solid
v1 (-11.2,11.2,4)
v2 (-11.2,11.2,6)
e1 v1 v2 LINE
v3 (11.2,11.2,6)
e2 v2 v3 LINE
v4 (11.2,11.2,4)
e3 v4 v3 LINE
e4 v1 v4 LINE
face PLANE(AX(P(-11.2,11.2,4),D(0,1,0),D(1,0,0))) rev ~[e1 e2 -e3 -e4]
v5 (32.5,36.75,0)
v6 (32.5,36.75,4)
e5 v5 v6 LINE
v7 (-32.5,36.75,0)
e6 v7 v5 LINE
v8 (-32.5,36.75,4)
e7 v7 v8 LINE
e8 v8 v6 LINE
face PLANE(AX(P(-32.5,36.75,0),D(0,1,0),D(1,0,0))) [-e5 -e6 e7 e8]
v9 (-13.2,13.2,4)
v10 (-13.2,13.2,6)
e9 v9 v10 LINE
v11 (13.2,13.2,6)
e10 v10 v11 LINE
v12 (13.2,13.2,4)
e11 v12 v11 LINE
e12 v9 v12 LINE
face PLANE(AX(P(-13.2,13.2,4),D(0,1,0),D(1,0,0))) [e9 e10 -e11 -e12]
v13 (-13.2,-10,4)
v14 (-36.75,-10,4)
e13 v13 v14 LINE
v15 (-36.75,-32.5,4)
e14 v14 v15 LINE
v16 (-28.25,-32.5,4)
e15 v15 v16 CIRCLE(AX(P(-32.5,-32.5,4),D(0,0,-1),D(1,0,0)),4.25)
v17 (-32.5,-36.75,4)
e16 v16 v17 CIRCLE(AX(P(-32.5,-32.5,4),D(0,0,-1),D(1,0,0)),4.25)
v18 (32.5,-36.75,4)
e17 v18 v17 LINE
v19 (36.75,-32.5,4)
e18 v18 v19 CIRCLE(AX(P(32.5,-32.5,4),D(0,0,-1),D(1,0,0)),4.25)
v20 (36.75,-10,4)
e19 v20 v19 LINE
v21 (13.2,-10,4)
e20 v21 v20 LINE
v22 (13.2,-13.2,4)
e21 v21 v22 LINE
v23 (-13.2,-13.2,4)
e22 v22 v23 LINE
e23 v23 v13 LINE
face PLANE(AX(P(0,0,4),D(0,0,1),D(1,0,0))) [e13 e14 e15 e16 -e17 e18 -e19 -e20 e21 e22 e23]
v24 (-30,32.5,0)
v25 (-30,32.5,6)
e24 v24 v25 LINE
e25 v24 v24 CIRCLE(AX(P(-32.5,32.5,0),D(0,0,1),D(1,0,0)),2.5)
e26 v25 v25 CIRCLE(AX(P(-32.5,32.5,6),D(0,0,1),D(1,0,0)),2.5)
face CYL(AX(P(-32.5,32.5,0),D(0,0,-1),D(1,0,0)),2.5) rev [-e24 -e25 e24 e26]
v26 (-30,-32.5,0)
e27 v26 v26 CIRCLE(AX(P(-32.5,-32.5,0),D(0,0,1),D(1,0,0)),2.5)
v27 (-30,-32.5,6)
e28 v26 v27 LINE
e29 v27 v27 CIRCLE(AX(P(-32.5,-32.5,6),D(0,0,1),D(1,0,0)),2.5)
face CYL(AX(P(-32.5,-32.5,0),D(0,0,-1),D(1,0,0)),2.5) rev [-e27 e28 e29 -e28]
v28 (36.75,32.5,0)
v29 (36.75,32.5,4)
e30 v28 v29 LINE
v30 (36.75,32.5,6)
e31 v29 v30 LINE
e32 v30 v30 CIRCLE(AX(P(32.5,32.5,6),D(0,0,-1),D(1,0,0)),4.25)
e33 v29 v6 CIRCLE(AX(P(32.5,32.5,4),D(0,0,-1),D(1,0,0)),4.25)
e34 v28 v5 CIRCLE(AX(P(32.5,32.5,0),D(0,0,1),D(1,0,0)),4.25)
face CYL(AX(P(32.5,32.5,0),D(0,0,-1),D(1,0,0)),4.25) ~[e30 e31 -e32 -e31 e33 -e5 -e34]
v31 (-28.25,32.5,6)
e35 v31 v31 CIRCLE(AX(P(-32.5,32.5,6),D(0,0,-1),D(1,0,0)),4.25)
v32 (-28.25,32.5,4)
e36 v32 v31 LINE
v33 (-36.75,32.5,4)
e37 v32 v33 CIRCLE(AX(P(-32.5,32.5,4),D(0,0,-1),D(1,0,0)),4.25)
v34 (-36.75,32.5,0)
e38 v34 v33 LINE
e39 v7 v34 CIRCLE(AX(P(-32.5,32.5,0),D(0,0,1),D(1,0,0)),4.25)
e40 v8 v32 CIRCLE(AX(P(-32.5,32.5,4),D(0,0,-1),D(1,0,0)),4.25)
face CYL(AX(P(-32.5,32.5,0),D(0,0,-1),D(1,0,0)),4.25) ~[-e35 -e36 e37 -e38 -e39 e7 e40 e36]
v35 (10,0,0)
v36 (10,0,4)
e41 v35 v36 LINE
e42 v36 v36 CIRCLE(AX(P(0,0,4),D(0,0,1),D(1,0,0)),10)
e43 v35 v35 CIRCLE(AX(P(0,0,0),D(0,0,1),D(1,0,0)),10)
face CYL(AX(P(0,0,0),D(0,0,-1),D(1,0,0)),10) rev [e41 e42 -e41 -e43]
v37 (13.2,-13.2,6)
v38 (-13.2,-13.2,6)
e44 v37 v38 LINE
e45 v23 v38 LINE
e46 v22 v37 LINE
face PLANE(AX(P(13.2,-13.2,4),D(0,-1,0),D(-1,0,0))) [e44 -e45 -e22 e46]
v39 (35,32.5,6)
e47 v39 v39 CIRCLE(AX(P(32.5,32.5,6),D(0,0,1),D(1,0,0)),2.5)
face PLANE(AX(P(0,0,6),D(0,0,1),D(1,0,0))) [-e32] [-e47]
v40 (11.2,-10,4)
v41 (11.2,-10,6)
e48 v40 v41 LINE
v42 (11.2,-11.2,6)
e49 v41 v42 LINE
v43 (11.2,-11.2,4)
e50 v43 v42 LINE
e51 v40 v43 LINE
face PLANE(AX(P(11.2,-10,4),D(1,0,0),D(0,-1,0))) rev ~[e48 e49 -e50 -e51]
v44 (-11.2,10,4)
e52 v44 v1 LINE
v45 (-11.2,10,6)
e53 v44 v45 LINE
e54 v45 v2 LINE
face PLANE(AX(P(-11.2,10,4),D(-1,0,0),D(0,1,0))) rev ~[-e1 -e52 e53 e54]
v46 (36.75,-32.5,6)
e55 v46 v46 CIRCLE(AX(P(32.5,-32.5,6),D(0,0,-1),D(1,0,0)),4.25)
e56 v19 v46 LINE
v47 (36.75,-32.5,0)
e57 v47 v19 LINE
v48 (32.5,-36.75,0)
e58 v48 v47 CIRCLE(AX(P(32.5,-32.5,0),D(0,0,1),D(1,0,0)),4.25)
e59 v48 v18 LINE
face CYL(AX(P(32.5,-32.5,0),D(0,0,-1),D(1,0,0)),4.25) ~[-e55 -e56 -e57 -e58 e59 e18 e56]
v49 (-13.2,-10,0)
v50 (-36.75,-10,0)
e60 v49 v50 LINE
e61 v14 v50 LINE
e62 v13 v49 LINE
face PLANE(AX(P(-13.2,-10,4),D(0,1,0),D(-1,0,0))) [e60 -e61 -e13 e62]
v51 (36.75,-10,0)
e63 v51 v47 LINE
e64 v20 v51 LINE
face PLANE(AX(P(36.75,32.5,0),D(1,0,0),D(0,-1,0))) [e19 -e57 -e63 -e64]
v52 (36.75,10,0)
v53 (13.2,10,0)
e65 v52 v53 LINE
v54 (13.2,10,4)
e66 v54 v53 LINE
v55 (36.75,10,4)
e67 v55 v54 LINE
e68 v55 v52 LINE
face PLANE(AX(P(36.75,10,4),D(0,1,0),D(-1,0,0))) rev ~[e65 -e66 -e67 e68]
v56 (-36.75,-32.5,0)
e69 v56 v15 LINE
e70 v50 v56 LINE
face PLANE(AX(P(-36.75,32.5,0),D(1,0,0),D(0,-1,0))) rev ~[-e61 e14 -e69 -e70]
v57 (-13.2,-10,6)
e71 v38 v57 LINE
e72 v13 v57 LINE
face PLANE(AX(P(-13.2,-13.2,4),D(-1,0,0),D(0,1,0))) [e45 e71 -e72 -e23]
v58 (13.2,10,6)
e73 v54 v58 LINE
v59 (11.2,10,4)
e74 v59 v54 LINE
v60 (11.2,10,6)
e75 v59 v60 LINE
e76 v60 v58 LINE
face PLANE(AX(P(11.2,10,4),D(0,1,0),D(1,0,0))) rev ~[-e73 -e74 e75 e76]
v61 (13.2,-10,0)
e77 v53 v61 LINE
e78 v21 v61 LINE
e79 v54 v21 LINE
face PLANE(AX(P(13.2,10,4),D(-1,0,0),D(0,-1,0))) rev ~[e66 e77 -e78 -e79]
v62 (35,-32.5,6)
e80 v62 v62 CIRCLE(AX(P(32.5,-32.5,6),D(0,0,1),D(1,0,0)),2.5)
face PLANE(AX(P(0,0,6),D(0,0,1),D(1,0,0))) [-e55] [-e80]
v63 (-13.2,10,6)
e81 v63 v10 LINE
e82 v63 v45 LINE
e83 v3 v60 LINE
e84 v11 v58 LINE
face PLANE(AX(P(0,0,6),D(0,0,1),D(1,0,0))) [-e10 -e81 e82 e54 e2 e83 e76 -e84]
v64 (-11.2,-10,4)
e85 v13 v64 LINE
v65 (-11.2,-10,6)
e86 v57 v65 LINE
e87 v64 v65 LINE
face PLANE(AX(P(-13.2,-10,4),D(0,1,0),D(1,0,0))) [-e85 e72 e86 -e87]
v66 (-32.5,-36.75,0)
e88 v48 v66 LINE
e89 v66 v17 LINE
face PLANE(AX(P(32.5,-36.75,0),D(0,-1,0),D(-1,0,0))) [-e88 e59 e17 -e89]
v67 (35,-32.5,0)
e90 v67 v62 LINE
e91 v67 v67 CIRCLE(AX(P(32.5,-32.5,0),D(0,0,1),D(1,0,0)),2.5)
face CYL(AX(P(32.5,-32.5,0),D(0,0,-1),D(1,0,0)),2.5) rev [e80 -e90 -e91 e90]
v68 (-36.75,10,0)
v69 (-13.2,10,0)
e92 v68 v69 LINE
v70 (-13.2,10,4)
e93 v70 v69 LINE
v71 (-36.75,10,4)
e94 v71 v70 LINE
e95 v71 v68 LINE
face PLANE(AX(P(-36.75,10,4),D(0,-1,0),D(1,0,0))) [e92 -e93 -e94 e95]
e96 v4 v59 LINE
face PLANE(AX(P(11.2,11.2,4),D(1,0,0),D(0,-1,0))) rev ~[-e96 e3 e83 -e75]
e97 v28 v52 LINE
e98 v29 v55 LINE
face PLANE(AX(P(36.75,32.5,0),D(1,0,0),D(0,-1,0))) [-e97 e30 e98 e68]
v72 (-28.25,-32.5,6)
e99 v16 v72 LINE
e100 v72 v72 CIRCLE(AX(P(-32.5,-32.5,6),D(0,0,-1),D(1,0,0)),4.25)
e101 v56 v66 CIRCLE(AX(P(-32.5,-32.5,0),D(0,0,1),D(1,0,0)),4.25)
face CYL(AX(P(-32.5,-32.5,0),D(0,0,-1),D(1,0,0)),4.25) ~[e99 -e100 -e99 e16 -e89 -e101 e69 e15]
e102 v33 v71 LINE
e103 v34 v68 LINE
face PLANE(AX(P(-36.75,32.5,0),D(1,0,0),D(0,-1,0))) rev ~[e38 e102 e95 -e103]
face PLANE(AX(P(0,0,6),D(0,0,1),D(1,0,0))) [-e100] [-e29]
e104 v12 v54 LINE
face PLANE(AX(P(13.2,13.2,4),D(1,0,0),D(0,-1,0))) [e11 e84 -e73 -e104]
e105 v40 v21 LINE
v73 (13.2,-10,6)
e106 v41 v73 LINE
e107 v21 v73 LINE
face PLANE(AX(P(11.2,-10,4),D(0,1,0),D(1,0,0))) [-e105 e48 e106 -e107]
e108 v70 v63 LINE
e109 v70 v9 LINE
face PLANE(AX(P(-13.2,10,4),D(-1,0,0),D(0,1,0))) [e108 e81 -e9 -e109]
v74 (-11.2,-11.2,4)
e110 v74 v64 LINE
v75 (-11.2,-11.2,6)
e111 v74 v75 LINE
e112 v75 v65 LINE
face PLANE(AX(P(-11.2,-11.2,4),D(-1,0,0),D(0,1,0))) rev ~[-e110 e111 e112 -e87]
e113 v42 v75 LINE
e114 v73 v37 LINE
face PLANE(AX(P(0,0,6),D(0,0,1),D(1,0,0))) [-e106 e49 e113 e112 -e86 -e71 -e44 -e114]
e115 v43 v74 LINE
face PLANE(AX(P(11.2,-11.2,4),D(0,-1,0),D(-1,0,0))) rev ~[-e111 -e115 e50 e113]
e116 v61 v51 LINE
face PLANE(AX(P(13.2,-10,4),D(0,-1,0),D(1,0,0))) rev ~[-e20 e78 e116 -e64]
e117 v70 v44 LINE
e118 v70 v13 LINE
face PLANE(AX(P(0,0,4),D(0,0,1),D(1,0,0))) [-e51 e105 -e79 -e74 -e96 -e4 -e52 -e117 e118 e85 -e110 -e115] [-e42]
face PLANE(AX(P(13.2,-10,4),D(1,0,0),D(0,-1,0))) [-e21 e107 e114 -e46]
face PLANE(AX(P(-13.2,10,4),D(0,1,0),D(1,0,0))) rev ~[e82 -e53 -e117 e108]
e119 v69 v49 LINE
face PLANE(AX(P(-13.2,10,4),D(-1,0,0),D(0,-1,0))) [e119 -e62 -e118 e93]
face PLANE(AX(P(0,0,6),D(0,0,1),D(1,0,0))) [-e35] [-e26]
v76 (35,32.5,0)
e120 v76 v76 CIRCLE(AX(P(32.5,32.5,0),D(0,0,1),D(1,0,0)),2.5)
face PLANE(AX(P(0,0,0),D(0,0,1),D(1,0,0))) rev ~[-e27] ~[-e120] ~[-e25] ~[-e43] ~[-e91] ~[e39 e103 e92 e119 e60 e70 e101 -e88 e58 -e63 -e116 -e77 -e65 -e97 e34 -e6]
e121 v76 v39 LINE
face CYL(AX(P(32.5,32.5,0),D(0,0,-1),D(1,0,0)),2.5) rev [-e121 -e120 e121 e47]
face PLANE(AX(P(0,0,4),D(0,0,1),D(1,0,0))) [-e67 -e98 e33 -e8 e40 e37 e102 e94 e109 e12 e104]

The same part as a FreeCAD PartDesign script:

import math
import FreeCAD as App
import Part
import Sketcher
from FreeCAD import Vector


def add_polygon(sketch, points):
    """Adds a closed chain of lines whose ends are joined by coincident constraints."""
    first, n = sketch.GeometryCount, len(points)
    for a, b in zip(points, points[1:] + points[:1]):
        sketch.addGeometry(Part.LineSegment(App.Vector(*a, 0), App.Vector(*b, 0)), False)
    for i in range(n):
        sketch.addConstraint(Sketcher.Constraint("Coincident", first + i, 2, first + (i + 1) % n, 1))

doc = App.newDocument("Part")
body = doc.addObject("PartDesign::Body", "Body")

# Sketch on XY plane
sketch1 = body.newObject("Sketcher::SketchObject", "Sketch")
sketch1.AttachmentSupport = (doc.getObject("XY_Plane"), [""])
sketch1.MapMode = "FlatFace"
sketch1.addGeometry([
    Part.ArcOfCircle(Part.Circle(Vector(-32.5, 32.5, 0), Vector(0, 0, 1), 4.25), math.radians(90), math.radians(180)),  # 0
    Part.LineSegment(Vector(-36.75, 32.5, 0), Vector(-36.75, -32.5, 0)),  # 1
    Part.ArcOfCircle(Part.Circle(Vector(-32.5, -32.5, 0), Vector(0, 0, 1), 4.25), math.radians(180), math.radians(270)),  # 2
    Part.LineSegment(Vector(-32.5, -36.75, 0), Vector(32.5, -36.75, 0)),  # 3
    Part.ArcOfCircle(Part.Circle(Vector(32.5, -32.5, 0), Vector(0, 0, 1), 4.25), math.radians(-90), math.radians(0)),  # 4
    Part.LineSegment(Vector(36.75, -32.5, 0), Vector(36.75, 32.5, 0)),  # 5
    Part.ArcOfCircle(Part.Circle(Vector(32.5, 32.5, 0), Vector(0, 0, 1), 4.25), math.radians(0), math.radians(90)),  # 6
    Part.LineSegment(Vector(32.5, 36.75, 0), Vector(-32.5, 36.75, 0)),  # 7
    Part.Circle(Vector(-32.5, 32.5, 0), Vector(0, 0, 1), 2.5),  # 8
    Part.Circle(Vector(0, 0, 0), Vector(0, 0, 1), 10),  # 9
    Part.Circle(Vector(32.5, 32.5, 0), Vector(0, 0, 1), 2.5),  # 10
    Part.Circle(Vector(32.5, -32.5, 0), Vector(0, 0, 1), 2.5),  # 11
    Part.Circle(Vector(-32.5, -32.5, 0), Vector(0, 0, 1), 2.5),  # 12
], False)
sketch1.addConstraint([
    Sketcher.Constraint("Tangent", 0, 2, 1, 1),
    Sketcher.Constraint("Tangent", 1, 2, 2, 1),
    Sketcher.Constraint("Tangent", 2, 2, 3, 1),
    Sketcher.Constraint("Tangent", 3, 2, 4, 1),
    Sketcher.Constraint("Tangent", 4, 2, 5, 1),
    Sketcher.Constraint("Tangent", 5, 2, 6, 1),
    Sketcher.Constraint("Tangent", 6, 2, 7, 1),
    Sketcher.Constraint("Tangent", 7, 2, 0, 1),
    Sketcher.Constraint("Vertical", 1),
    Sketcher.Constraint("Horizontal", 3),
    Sketcher.Constraint("Vertical", 5),
    Sketcher.Constraint("Horizontal", 7),
    Sketcher.Constraint("Coincident", 9, 3, -1, 1),
    Sketcher.Constraint("Coincident", 8, 3, 0, 3),
    Sketcher.Constraint("Coincident", 10, 3, 6, 3),
    Sketcher.Constraint("Coincident", 11, 3, 4, 3),
    Sketcher.Constraint("Coincident", 12, 3, 2, 3),
    Sketcher.Constraint("Equal", 0, 2),
    Sketcher.Constraint("Equal", 2, 4),
    Sketcher.Constraint("Equal", 4, 6),
    Sketcher.Constraint("Equal", 8, 10),
    Sketcher.Constraint("Equal", 10, 11),
    Sketcher.Constraint("Equal", 11, 12),
    Sketcher.Constraint("Symmetric", 0, 3, 4, 3, -1, 1),
    Sketcher.Constraint("Equal", 7, 1),
    Sketcher.Constraint("Diameter", 8, 5.0),
    Sketcher.Constraint("Diameter", 9, 20.0),
    Sketcher.Constraint("DistanceX", 3, 1, 3, 2, 65.0),
    Sketcher.Constraint("Radius", 0, 4.25),
])
pad1 = body.newObject("PartDesign::Pad", "Pad")
pad1.Profile = sketch1
pad1.Length = 4

# Sketch on XY plane
sketch2 = body.newObject("Sketcher::SketchObject", "Sketch001")
sketch2.AttachmentSupport = (doc.getObject("XY_Plane"), [""])
sketch2.MapMode = "FlatFace"
sketch2.AttachmentOffset = App.Placement(Vector(0, 0, 4), App.Rotation())
add_polygon(sketch2, [(-11.2, 10), (-11.2, 11.2), (11.2, 11.2), (11.2, 10), (13.2, 10), (13.2, 13.2), (-13.2, 13.2), (-13.2, 10)])  # lines 0-7
add_polygon(sketch2, [(11.2, -10), (11.2, -11.2), (-11.2, -11.2), (-11.2, -10), (-13.2, -10), (-13.2, -13.2), (13.2, -13.2), (13.2, -10)])  # lines 8-15
sketch2.addConstraint([
    Sketcher.Constraint("Vertical", 0),
    Sketcher.Constraint("Horizontal", 1),
    Sketcher.Constraint("Vertical", 2),
    Sketcher.Constraint("Horizontal", 3),
    Sketcher.Constraint("Vertical", 4),
    Sketcher.Constraint("Horizontal", 5),
    Sketcher.Constraint("Vertical", 6),
    Sketcher.Constraint("Horizontal", 7),
    Sketcher.Constraint("Vertical", 8),
    Sketcher.Constraint("Horizontal", 9),
    Sketcher.Constraint("Vertical", 10),
    Sketcher.Constraint("Horizontal", 11),
    Sketcher.Constraint("Vertical", 12),
    Sketcher.Constraint("Horizontal", 13),
    Sketcher.Constraint("Vertical", 14),
    Sketcher.Constraint("Horizontal", 15),
    Sketcher.Constraint("Symmetric", 0, 2, 8, 2, -1, 1),
    Sketcher.Constraint("Symmetric", 2, 2, 10, 2, -1, 1),
    Sketcher.Constraint("Symmetric", 4, 2, 12, 2, -1, 1),
    Sketcher.Constraint("Symmetric", 6, 2, 14, 2, -1, 1),
    Sketcher.Constraint("Symmetric", 3, 2, 6, 2, -2),
    Sketcher.Constraint("Vertical", 2, 2, 8, 2),
    Sketcher.Constraint("DistanceX", 3, 1, 3, 2, 2.0),
    Sketcher.Constraint("DistanceX", 1, 1, 1, 2, 22.4),
    Sketcher.Constraint("DistanceY", 1, 2, 4, 2, 2.0),
    Sketcher.Constraint("DistanceY", 10, 2, 7, 2, 20.0),
    Sketcher.Constraint("DistanceY", 8, 2, 1, 2, 22.4),
])
pad2 = body.newObject("PartDesign::Pad", "Pad001")
pad2.Profile = sketch2
pad2.Length = 2

# Sketch on XY plane
sketch3 = body.newObject("Sketcher::SketchObject", "Sketch002")
sketch3.AttachmentSupport = (doc.getObject("XY_Plane"), [""])
sketch3.MapMode = "FlatFace"
sketch3.addGeometry([
    Part.Circle(Vector(-32.5, 32.5, 0), Vector(0, 0, 1), 4.25),  # 0
    Part.Circle(Vector(-32.5, 32.5, 0), Vector(0, 0, 1), 2.5),  # 1
    Part.Circle(Vector(32.5, 32.5, 0), Vector(0, 0, 1), 4.25),  # 2
    Part.Circle(Vector(32.5, 32.5, 0), Vector(0, 0, 1), 2.5),  # 3
    Part.Circle(Vector(-32.5, -32.5, 0), Vector(0, 0, 1), 4.25),  # 4
    Part.Circle(Vector(-32.5, -32.5, 0), Vector(0, 0, 1), 2.5),  # 5
    Part.Circle(Vector(32.5, -32.5, 0), Vector(0, 0, 1), 4.25),  # 6
    Part.Circle(Vector(32.5, -32.5, 0), Vector(0, 0, 1), 2.5),  # 7
], False)
sketch3.addConstraint([
    Sketcher.Constraint("Coincident", 1, 3, 0, 3),
    Sketcher.Constraint("Coincident", 3, 3, 2, 3),
    Sketcher.Constraint("Coincident", 5, 3, 4, 3),
    Sketcher.Constraint("Coincident", 7, 3, 6, 3),
    Sketcher.Constraint("Equal", 0, 2),
    Sketcher.Constraint("Equal", 1, 3),
    Sketcher.Constraint("Equal", 2, 4),
    Sketcher.Constraint("Equal", 3, 5),
    Sketcher.Constraint("Equal", 4, 6),
    Sketcher.Constraint("Equal", 5, 7),
    Sketcher.Constraint("Symmetric", 2, 3, 4, 3, -1, 1),
    Sketcher.Constraint("Symmetric", 0, 3, 6, 3, -1, 1),
    Sketcher.Constraint("Symmetric", 0, 3, 2, 3, -2),
    Sketcher.Constraint("Diameter", 1, 5.0),
    Sketcher.Constraint("Diameter", 0, 8.5),
    Sketcher.Constraint("DistanceX", 0, 3, 2, 3, 65.0),
    Sketcher.Constraint("DistanceY", 4, 3, 0, 3, 65.0),
])
pad3 = body.newObject("PartDesign::Pad", "Pad002")
pad3.Profile = sketch3
pad3.Length = 6

# Sketch on XY plane
sketch4 = body.newObject("Sketcher::SketchObject", "Sketch003")
sketch4.AttachmentSupport = (doc.getObject("XY_Plane"), [""])
sketch4.MapMode = "FlatFace"
sketch4.AttachmentOffset = App.Placement(Vector(0, 0, 4), App.Rotation())
add_polygon(sketch4, [(36.75, 10), (13.2, 10), (13.2, -10), (36.75, -10)])  # lines 0-3
add_polygon(sketch4, [(-13.2, -10), (-13.2, 10), (-36.75, 10), (-36.75, -10)])  # lines 4-7
sketch4.addConstraint([
    Sketcher.Constraint("Horizontal", 0),
    Sketcher.Constraint("Vertical", 1),
    Sketcher.Constraint("Horizontal", 2),
    Sketcher.Constraint("Vertical", 3),
    Sketcher.Constraint("Vertical", 4),
    Sketcher.Constraint("Horizontal", 5),
    Sketcher.Constraint("Vertical", 6),
    Sketcher.Constraint("Horizontal", 7),
    Sketcher.Constraint("Symmetric", 1, 2, 4, 2, -1, 1),
    Sketcher.Constraint("Symmetric", 3, 2, 6, 2, -1, 1),
    Sketcher.Constraint("Horizontal", 3, 2, 4, 2),
    Sketcher.Constraint("DistanceY", 1, 2, 1, 1, 20.0),
    Sketcher.Constraint("DistanceX", 0, 2, 0, 1, 23.55),
    Sketcher.Constraint("DistanceX", -1, 1, 0, 2, 13.2),
])
pocket1 = body.newObject("PartDesign::Pocket", "Pocket")
pocket1.Profile = sketch4
pocket1.Type = "ThroughAll"

doc.recompute()
